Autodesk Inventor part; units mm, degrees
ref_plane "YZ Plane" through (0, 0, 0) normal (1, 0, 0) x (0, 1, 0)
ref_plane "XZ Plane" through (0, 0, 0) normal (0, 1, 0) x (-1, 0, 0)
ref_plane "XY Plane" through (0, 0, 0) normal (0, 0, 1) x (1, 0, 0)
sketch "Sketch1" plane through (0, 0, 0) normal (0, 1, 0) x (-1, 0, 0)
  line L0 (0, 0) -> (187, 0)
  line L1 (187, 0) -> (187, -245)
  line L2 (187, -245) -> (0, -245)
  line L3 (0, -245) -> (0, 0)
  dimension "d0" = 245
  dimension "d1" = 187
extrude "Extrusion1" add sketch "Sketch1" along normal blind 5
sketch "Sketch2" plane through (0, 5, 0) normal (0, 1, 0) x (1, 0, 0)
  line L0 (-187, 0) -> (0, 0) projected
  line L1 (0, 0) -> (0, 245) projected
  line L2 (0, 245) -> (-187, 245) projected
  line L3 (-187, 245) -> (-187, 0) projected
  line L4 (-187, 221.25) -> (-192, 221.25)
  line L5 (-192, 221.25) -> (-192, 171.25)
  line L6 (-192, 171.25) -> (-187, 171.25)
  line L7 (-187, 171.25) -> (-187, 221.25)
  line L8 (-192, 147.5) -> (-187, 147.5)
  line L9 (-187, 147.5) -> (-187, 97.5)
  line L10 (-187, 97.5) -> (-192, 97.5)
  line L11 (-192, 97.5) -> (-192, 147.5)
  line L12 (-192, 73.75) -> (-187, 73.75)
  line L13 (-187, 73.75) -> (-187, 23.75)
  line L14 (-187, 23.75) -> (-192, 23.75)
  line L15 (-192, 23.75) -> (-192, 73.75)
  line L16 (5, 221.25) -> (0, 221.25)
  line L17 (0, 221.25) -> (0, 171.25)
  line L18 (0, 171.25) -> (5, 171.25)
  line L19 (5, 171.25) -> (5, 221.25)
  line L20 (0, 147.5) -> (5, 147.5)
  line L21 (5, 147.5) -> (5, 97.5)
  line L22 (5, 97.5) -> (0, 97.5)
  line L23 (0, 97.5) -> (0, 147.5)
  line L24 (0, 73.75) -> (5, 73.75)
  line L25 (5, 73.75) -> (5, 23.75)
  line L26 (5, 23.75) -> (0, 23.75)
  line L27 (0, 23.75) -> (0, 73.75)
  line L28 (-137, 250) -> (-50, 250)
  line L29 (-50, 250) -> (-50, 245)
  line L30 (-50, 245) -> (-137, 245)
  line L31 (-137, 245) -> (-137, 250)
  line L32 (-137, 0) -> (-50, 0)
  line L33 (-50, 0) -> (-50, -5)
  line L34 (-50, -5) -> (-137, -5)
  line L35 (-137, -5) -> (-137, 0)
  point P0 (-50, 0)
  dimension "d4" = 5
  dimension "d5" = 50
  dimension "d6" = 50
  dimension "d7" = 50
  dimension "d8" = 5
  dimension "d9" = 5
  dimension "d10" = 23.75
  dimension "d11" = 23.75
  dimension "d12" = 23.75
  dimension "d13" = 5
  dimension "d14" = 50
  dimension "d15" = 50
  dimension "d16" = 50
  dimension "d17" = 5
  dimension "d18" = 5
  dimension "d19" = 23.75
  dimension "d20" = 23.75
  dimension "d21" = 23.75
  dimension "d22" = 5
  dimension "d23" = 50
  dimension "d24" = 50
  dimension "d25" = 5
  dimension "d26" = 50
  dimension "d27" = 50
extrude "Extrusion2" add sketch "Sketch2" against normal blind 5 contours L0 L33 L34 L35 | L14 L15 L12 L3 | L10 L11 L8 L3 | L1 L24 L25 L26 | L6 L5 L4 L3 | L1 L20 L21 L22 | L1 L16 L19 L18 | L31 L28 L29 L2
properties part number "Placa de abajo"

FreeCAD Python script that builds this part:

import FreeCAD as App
import Part
import Sketcher

V = App.Vector


def add_polygon(sketch, points):
    """Adds a closed chain of lines whose ends are joined by coincident constraints."""
    first, n = sketch.GeometryCount, len(points)
    for a, b in zip(points, points[1:] + points[:1]):
        sketch.addGeometry(Part.LineSegment(App.Vector(*a, 0), App.Vector(*b, 0)), False)
    for i in range(n):
        sketch.addConstraint(Sketcher.Constraint("Coincident", first + i, 2, first + (i + 1) % n, 1))

doc = App.newDocument("Part")
body = doc.addObject("PartDesign::Body", "Body")

# Sketch on XZ plane
sketch1 = body.newObject("Sketcher::SketchObject", "Sketch")
sketch1.AttachmentSupport = (doc.getObject("XZ_Plane"), [""])
sketch1.MapMode = "FlatFace"
add_polygon(sketch1, [(-187, 0), (0, 0), (0, -245), (-187, -245)])  # lines 0-3
sketch1.addConstraint([
    Sketcher.Constraint("Horizontal", 0),
    Sketcher.Constraint("Vertical", 1),
    Sketcher.Constraint("Horizontal", 2),
    Sketcher.Constraint("Vertical", 3),
    Sketcher.Constraint("Coincident", 0, 2, -1, 1),
    Sketcher.Constraint("DistanceX", 0, 1, 0, 2, 187.0),
    Sketcher.Constraint("DistanceY", 1, 2, 1, 1, 245.0),
])
pad1 = body.newObject("PartDesign::Pad", "Pad")
pad1.Profile = sketch1
pad1.Length = 5
pad1.Reversed = True

# Sketch on XZ plane
sketch2 = body.newObject("Sketcher::SketchObject", "Sketch001")
sketch2.AttachmentSupport = (doc.getObject("XZ_Plane"), [""])
sketch2.MapMode = "FlatFace"
sketch2.AttachmentOffset = App.Placement(V(0, 0, -5), App.Rotation())
add_polygon(sketch2, [(-50, 0), (-137, 0), (-137, 5), (-50, 5)])  # lines 0-3
add_polygon(sketch2, [(-192, -23.75), (-187, -23.75), (-187, -73.75), (-192, -73.75)])  # lines 4-7
add_polygon(sketch2, [(-192, -97.5), (-187, -97.5), (-187, -147.5), (-192, -147.5)])  # lines 8-11
add_polygon(sketch2, [(0, -73.75), (0, -23.75), (5, -23.75), (5, -73.75)])  # lines 12-15
add_polygon(sketch2, [(-192, -171.25), (-187, -171.25), (-187, -221.25), (-192, -221.25)])  # lines 16-19
add_polygon(sketch2, [(0, -147.5), (0, -97.5), (5, -97.5), (5, -147.5)])  # lines 20-23
add_polygon(sketch2, [(0, -221.25), (0, -171.25), (5, -171.25), (5, -221.25)])  # lines 24-27
add_polygon(sketch2, [(-137, -250), (-137, -245), (-50, -245), (-50, -250)])  # lines 28-31
sketch2.addConstraint([
    Sketcher.Constraint("Horizontal", 0),
    Sketcher.Constraint("Vertical", 1),
    Sketcher.Constraint("Horizontal", 2),
    Sketcher.Constraint("Vertical", 3),
    Sketcher.Constraint("Horizontal", 4),
    Sketcher.Constraint("Vertical", 5),
    Sketcher.Constraint("Horizontal", 6),
    Sketcher.Constraint("Vertical", 7),
    Sketcher.Constraint("Horizontal", 8),
    Sketcher.Constraint("Vertical", 9),
    Sketcher.Constraint("Horizontal", 10),
    Sketcher.Constraint("Vertical", 11),
    Sketcher.Constraint("Vertical", 12),
    Sketcher.Constraint("Horizontal", 13),
    Sketcher.Constraint("Vertical", 14),
    Sketcher.Constraint("Horizontal", 15),
    Sketcher.Constraint("Horizontal", 16),
    Sketcher.Constraint("Vertical", 17),
    Sketcher.Constraint("Horizontal", 18),
    Sketcher.Constraint("Vertical", 19),
    Sketcher.Constraint("Vertical", 20),
    Sketcher.Constraint("Horizontal", 21),
    Sketcher.Constraint("Vertical", 22),
    Sketcher.Constraint("Horizontal", 23),
    Sketcher.Constraint("Vertical", 24),
    Sketcher.Constraint("Horizontal", 25),
    Sketcher.Constraint("Vertical", 26),
    Sketcher.Constraint("Horizontal", 27),
    Sketcher.Constraint("Vertical", 28),
    Sketcher.Constraint("Horizontal", 29),
    Sketcher.Constraint("Vertical", 30),
    Sketcher.Constraint("Horizontal", 31),
    Sketcher.Constraint("PointOnObject", 0, 2, -1),
    Sketcher.Constraint("PointOnObject", 12, 2, -2),
    Sketcher.Constraint("PointOnObject", 20, 2, -2),
    Sketcher.Constraint("PointOnObject", 24, 2, -2),
    Sketcher.Constraint("Horizontal", 7, 2, 12, 2),
    Sketcher.Constraint("Horizontal", 6, 2, 14, 2),
    Sketcher.Constraint("Horizontal", 11, 2, 20, 2),
    Sketcher.Constraint("Horizontal", 10, 2, 22, 2),
    Sketcher.Constraint("Horizontal", 19, 2, 24, 2),
    Sketcher.Constraint("Horizontal", 18, 2, 26, 2),
    Sketcher.Constraint("Vertical", 5, 2, 8, 2),
    Sketcher.Constraint("Vertical", 7, 2, 10, 2),
    Sketcher.Constraint("Vertical", 9, 2, 16, 2),
    Sketcher.Constraint("Vertical", 11, 2, 18, 2),
    Sketcher.Constraint("Vertical", 14, 2, 21, 2),
    Sketcher.Constraint("Vertical", 22, 2, 25, 2),
    Sketcher.Constraint("Vertical", 1, 2, 28, 2),
    Sketcher.Constraint("Vertical", 3, 2, 29, 2),
    Sketcher.Constraint("Equal", 10, 13),
    Sketcher.Constraint("Equal", 27, 1),
    Sketcher.Constraint("Equal", 7, 9),
    Sketcher.Constraint("Equal", 14, 17),
    Sketcher.Constraint("Equal", 3, 28),
    Sketcher.Constraint("DistanceX", 4, 1, 4, 2, 5.0),
    Sketcher.Constraint("DistanceY", 5, 2, 5, 1, 50.0),
    Sketcher.Constraint("DistanceX", 2, 2, -1, 1, 50.0),
    Sketcher.Constraint("DistanceX", 4, 2, 0, 2, 50.0),
    Sketcher.Constraint("DistanceX", 0, 2, 0, 1, 87.0),
    Sketcher.Constraint("DistanceY", 4, 2, -1, 1, 23.75),
    Sketcher.Constraint("DistanceY", 8, 2, 5, 2, 23.75),
    Sketcher.Constraint("DistanceY", 16, 2, 9, 2, 23.75),
    Sketcher.Constraint("DistanceY", 28, 2, 17, 2, 23.75),
])
pad2 = body.newObject("PartDesign::Pad", "Pad001")
pad2.Profile = sketch2
pad2.Length = 5

doc.recompute()
